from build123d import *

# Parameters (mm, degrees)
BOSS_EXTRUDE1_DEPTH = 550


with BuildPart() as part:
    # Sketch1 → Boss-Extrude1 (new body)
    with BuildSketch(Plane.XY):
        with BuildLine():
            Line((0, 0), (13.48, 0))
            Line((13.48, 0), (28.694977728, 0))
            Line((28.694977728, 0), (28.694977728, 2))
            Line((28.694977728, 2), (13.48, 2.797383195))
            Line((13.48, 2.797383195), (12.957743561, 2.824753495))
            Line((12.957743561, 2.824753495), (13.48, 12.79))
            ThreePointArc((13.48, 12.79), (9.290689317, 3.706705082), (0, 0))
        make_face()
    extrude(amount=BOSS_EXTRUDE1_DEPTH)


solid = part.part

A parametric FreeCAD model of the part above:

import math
import FreeCAD as App
import Part
import Sketcher
Q = App.Units.Quantity

doc = App.newDocument("Part")
body = doc.addObject("PartDesign::Body", "Body")

sketch1 = body.newObject("Sketcher::SketchObject", "Sketch")
sketch1.AttachmentSupport = (doc.getObject("XY_Plane"), [""])
sketch1.MapMode = "FlatFace"
sketch1.addGeometry(Part.LineSegment(App.Vector(0, 0, 0), App.Vector(28.7, 0, 0)), False)
sketch1.addGeometry(Part.LineSegment(App.Vector(28.7, 0, 0), App.Vector(28.7, 2, 0)), False)
sketch1.addGeometry(Part.LineSegment(App.Vector(28.7, 2, 0), App.Vector(13.5, 2.8, 0)), False)
sketch1.addGeometry(Part.LineSegment(App.Vector(13.5, 2.8, 0), App.Vector(13, 2.8, 0)), False)
sketch1.addGeometry(Part.LineSegment(App.Vector(13, 2.8, 0), App.Vector(13.5, 12.8, 0)), False)
sketch1.addGeometry(Part.ArcOfCircle(Part.Circle(App.Vector(0, 13.5, 0), App.Vector(0, 0, 1), 13.5), math.radians(-90), math.radians(-3)), False)
sketch1.addConstraint(Sketcher.Constraint("Coincident", 0, 2, 1, 1))
sketch1.addConstraint(Sketcher.Constraint("Coincident", 1, 2, 2, 1))
sketch1.addConstraint(Sketcher.Constraint("Coincident", 2, 2, 3, 1))
sketch1.addConstraint(Sketcher.Constraint("Coincident", 3, 2, 4, 1))
sketch1.addConstraint(Sketcher.Constraint("Coincident", 4, 2, 5, 2))
sketch1.addConstraint(Sketcher.Constraint("Coincident", 5, 1, 0, 1))
sketch1.addConstraint(Sketcher.Constraint("Horizontal", 0))
sketch1.addConstraint(Sketcher.Constraint("Vertical", 1))
sketch1.addConstraint(Sketcher.Constraint("Coincident", 5, 1, -1, 1))
sketch1.addConstraint(Sketcher.Constraint("Parallel", 2, 3))
sketch1.addConstraint(Sketcher.Constraint("Perpendicular", 3, 4))
sketch1.addConstraint(Sketcher.Constraint("Vertical", 2, 2, 4, 2))
sketch1.addConstraint(Sketcher.Constraint("Radius", 5, 13.5))
sketch1.addConstraint(Sketcher.Constraint("DistanceY", 1, 1, 1, 2, 2.0))
sketch1.addConstraint(Sketcher.Constraint("Angle", 2, Q("177 deg")))
sketch1.addConstraint(Sketcher.Constraint("DistanceX", -1, 1, 2, 2, 13.48))
sketch1.addConstraint(Sketcher.Constraint("DistanceY", -1, 1, 4, 2, 12.79))
sketch1.addConstraint(Sketcher.Constraint("DistanceX", 0, 1, 0, 2, 28.694978))
pad1 = body.newObject("PartDesign::Pad", "Pad")
pad1.Profile = sketch1
pad1.Length = 550

doc.recompute()
